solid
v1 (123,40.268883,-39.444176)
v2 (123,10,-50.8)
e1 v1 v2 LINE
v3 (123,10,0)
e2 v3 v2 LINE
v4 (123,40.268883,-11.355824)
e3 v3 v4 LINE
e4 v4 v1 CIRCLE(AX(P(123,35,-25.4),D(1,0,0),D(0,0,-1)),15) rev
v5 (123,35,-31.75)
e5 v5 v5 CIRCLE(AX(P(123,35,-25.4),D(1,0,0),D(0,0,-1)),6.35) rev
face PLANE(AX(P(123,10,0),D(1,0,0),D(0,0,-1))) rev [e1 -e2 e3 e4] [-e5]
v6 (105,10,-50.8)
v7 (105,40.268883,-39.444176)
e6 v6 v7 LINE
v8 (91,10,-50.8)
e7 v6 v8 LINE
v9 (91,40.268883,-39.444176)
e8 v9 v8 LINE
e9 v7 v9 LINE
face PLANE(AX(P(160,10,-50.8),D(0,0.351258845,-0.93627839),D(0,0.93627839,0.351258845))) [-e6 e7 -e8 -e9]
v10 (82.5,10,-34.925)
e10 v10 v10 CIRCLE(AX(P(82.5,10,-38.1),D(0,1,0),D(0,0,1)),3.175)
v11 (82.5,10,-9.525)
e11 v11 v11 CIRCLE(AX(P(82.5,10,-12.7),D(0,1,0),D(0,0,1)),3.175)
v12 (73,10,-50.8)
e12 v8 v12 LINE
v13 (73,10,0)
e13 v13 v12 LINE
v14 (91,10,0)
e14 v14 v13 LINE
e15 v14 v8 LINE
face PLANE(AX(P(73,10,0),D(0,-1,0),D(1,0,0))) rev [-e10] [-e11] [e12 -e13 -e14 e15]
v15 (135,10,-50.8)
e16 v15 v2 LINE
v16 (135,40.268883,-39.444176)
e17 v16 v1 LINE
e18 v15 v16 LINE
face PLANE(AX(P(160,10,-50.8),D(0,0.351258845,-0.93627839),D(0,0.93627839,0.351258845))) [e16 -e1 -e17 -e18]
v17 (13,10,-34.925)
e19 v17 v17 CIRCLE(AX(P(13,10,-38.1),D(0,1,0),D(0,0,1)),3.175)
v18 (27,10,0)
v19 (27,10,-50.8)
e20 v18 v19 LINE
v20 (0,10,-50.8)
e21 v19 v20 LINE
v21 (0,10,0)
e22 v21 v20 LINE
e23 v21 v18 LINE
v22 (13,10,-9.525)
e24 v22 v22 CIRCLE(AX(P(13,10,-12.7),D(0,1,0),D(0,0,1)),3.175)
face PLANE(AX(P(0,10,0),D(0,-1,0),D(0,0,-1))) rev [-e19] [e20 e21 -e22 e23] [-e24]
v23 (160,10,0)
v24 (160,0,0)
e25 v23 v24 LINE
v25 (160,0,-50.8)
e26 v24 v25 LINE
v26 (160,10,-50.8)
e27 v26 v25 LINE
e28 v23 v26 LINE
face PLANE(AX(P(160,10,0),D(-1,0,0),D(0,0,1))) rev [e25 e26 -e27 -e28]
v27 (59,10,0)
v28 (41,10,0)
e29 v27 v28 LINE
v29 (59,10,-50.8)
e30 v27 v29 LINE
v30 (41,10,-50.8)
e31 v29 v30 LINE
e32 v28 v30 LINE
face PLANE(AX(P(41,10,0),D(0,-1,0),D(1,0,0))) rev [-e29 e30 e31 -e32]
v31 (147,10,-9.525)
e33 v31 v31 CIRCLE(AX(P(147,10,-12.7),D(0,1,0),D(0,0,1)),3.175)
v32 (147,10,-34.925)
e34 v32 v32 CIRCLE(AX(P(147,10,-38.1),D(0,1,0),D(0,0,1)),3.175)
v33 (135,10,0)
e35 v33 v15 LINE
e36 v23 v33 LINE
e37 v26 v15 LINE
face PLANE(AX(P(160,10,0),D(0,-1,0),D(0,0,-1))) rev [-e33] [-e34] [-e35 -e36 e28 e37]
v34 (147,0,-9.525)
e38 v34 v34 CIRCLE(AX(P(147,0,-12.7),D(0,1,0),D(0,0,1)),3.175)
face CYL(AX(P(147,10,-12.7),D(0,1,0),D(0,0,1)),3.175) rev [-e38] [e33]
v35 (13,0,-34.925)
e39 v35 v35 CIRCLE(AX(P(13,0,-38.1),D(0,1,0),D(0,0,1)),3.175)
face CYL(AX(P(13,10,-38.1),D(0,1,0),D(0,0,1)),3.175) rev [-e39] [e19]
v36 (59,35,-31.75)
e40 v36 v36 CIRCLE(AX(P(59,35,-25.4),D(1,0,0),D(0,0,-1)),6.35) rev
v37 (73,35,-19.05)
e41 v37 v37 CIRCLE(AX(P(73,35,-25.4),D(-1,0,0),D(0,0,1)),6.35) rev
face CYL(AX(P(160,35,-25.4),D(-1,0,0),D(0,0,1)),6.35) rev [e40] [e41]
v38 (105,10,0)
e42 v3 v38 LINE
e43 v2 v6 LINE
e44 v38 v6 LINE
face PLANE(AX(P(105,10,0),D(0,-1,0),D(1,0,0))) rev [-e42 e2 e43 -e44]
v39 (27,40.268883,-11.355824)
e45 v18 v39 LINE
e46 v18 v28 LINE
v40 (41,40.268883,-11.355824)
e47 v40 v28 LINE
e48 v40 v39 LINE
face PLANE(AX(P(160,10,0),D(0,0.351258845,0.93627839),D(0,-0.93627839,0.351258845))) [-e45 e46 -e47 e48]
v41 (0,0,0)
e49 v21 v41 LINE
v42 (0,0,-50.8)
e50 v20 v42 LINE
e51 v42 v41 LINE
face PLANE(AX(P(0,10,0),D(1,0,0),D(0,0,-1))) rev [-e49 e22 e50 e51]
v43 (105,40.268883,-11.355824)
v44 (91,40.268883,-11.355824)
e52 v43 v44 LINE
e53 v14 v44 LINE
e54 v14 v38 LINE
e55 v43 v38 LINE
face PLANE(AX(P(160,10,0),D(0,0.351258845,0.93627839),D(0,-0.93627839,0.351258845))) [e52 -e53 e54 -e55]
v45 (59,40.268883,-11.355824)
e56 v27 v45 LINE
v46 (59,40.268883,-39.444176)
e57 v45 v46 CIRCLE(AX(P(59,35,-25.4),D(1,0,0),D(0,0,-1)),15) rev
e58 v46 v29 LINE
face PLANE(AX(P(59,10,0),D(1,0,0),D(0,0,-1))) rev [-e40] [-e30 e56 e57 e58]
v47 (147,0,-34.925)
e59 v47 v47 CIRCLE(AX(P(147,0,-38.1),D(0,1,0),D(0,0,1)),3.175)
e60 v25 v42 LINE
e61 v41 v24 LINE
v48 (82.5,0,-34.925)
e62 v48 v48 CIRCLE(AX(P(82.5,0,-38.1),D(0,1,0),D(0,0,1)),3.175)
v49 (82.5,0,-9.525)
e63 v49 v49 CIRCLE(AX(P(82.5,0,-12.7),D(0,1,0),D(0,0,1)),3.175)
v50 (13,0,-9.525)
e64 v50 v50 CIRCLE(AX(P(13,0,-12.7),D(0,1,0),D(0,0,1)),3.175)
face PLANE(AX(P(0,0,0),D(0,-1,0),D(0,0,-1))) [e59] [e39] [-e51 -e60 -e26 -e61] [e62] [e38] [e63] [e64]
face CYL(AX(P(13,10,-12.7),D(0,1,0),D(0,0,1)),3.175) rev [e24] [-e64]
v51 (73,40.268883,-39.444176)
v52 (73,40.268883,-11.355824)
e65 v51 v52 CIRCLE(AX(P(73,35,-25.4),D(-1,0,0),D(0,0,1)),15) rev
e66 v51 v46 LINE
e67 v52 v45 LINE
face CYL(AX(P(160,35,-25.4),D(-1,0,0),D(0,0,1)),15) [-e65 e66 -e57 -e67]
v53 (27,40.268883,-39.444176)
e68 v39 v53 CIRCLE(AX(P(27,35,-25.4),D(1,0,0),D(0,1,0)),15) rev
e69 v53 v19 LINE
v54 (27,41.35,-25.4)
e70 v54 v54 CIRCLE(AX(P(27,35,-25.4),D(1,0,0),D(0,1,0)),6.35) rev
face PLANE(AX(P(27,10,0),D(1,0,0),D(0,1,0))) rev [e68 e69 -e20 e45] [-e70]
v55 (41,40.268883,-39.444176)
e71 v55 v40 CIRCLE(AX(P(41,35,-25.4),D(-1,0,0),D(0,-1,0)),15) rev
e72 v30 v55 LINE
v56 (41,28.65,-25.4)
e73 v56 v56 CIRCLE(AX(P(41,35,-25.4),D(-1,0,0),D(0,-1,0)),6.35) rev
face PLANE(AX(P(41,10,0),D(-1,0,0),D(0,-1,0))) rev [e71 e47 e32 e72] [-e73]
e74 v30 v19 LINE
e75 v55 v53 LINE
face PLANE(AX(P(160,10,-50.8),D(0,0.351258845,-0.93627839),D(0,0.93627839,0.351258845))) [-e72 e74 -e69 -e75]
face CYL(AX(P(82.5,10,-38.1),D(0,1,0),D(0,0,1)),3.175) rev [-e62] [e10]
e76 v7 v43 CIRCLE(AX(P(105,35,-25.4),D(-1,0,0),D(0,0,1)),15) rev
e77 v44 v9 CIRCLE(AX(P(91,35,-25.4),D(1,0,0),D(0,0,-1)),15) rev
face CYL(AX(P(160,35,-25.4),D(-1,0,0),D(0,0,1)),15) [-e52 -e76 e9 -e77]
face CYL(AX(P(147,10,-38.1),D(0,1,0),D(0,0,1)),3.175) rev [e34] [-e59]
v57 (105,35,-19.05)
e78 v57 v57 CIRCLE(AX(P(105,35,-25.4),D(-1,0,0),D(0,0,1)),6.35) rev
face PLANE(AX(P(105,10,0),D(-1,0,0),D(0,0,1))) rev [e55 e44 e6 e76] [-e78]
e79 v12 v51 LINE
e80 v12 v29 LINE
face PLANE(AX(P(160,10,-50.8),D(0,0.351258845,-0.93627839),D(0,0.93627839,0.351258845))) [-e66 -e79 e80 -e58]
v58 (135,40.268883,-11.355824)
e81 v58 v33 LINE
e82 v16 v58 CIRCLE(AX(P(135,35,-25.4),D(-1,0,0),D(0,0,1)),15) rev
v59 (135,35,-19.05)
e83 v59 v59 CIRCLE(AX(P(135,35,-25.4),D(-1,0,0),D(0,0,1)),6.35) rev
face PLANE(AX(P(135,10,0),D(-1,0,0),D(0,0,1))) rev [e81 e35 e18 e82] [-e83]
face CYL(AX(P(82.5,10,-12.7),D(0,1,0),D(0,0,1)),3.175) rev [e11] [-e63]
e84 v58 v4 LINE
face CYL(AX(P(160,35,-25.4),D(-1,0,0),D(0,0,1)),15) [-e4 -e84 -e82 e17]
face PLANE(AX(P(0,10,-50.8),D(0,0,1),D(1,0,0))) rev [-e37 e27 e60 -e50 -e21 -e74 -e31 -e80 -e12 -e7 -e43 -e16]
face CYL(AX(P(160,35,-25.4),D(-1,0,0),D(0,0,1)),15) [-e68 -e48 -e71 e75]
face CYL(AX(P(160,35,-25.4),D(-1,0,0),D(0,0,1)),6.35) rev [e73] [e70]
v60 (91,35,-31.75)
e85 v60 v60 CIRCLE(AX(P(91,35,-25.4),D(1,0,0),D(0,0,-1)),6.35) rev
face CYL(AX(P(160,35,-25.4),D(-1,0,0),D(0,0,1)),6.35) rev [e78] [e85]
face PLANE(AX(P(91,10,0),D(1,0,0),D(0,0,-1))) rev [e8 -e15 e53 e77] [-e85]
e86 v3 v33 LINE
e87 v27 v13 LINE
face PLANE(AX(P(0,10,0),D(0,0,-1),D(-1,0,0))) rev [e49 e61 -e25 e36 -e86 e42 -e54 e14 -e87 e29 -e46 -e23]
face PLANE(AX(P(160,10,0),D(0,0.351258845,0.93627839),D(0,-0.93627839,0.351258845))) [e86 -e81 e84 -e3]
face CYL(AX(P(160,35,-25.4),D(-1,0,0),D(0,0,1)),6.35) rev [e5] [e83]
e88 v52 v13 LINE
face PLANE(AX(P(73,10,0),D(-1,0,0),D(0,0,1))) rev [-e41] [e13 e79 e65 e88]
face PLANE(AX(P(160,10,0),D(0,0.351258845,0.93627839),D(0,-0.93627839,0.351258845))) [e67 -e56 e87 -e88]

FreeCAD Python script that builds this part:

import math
import FreeCAD as App
import Part
import Sketcher

doc = App.newDocument("Part")
body = doc.addObject("PartDesign::Body", "Body")

# Sketch on XZ plane
sketch1 = doc.addObject("Sketcher::SketchObject", "Sketch")
body.addObject(sketch1)
sketch1.AttachmentSupport = (doc.XZ_Plane, [""])
sketch1.MapMode = "FlatFace"
sketch1.addGeometry([
    Part.LineSegment(App.Vector(0, -51, 0), App.Vector(0, 0, 0)),
    Part.LineSegment(App.Vector(0, 0, 0), App.Vector(160, 0, 0)),
    Part.LineSegment(App.Vector(160, 0, 0), App.Vector(160, -51, 0)),
    Part.LineSegment(App.Vector(160, -51, 0), App.Vector(0, -51, 0)),
], False)
sketch1.addConstraint([
    Sketcher.Constraint("Coincident", 0, 2, 1, 1),
    Sketcher.Constraint("Coincident", 1, 2, 2, 1),
    Sketcher.Constraint("Coincident", 2, 2, 3, 1),
    Sketcher.Constraint("Coincident", 3, 2, 0, 1),
    Sketcher.Constraint("Vertical", 0),
    Sketcher.Constraint("Horizontal", 1),
    Sketcher.Constraint("Vertical", 2),
    Sketcher.Constraint("Horizontal", 3),
    Sketcher.Constraint("Coincident", 0, 2, -1, 1),
    Sketcher.Constraint("DistanceX", 1, 1, 1, 2, 160.0),
    Sketcher.Constraint("DistanceY", 0, 1, 0, 2, 50.8),
])
pad1 = doc.addObject("PartDesign::Pad", "Pad")
body.addObject(pad1)
pad1.Profile = sketch1
pad1.Length = 10
pad1.Reversed = True

# Sketch on YZ plane
sketch2 = doc.addObject("Sketcher::SketchObject", "Sketch001")
body.addObject(sketch2)
sketch2.AttachmentSupport = (doc.YZ_Plane, [""])
sketch2.MapMode = "FlatFace"
sketch2.addGeometry([
    Part.LineSegment(App.Vector(40, -39, 0), App.Vector(10, -51, 0)),  # 0
    Part.LineSegment(App.Vector(10, -51, 0), App.Vector(10, 0, 0)),  # 1
    Part.LineSegment(App.Vector(10, 0, 0), App.Vector(40, -11, 0)),  # 2
    Part.ArcOfCircle(Part.Circle(App.Vector(35, -25, 0), App.Vector(0, 0, 1), 15), math.radians(-69), math.radians(69)),  # 3
    Part.Circle(App.Vector(35, -25, 0), App.Vector(0, 0, 1), 6),  # 4
], False)
sketch2.addConstraint([
    Sketcher.Constraint("Coincident", 0, 2, 1, 1),
    Sketcher.Constraint("Coincident", 1, 2, 2, 1),
    Sketcher.Constraint("Tangent", 2, 2, 3, 2),
    Sketcher.Constraint("Tangent", 3, 1, 0, 1),
    Sketcher.Constraint("Vertical", 1),
    Sketcher.Constraint("Coincident", 4, 3, 3, 3),
    Sketcher.Constraint("PointOnObject", 1, 2, -1),
    Sketcher.Constraint("Vertical", 2, 2, 3, 1),
    Sketcher.Constraint("Radius", 3, 15.0),
    Sketcher.Constraint("Diameter", 4, 12.7),
    Sketcher.Constraint("DistanceY", 1, 1, 1, 2, 50.8),
    Sketcher.Constraint("DistanceX", -1, 1, 3, 3, 35.0),
    Sketcher.Constraint("DistanceX", -1, 1, 0, 2, 10.0),
])
pad2 = doc.addObject("PartDesign::Pad", "Pad001")
body.addObject(pad2)
pad2.Profile = sketch2
pad2.Length = 160

# Sketch on XY plane
sketch3 = doc.addObject("Sketcher::SketchObject", "Sketch002")
body.addObject(sketch3)
sketch3.AttachmentSupport = (doc.XY_Plane, [""])
sketch3.MapMode = "FlatFace"
sketch3.AttachmentOffset = App.Placement(App.Vector(0, 0, -50.8), App.Rotation())
sketch3.addGeometry([
    Part.LineSegment(App.Vector(27, 50, 0), App.Vector(27, 10, 0)),  # 0
    Part.LineSegment(App.Vector(27, 10, 0), App.Vector(0, 10, 0)),  # 1
    Part.LineSegment(App.Vector(0, 10, 0), App.Vector(0, 50, 0)),  # 2
    Part.LineSegment(App.Vector(0, 50, 0), App.Vector(27, 50, 0)),  # 3
    Part.LineSegment(App.Vector(59, 50, 0), App.Vector(59, 10, 0)),  # 4
    Part.LineSegment(App.Vector(59, 10, 0), App.Vector(41, 10, 0)),  # 5
    Part.LineSegment(App.Vector(41, 10, 0), App.Vector(41, 50, 0)),  # 6
    Part.LineSegment(App.Vector(41, 50, 0), App.Vector(59, 50, 0)),  # 7
    Part.LineSegment(App.Vector(91, 50, 0), App.Vector(91, 10, 0)),  # 8
    Part.LineSegment(App.Vector(91, 10, 0), App.Vector(73, 10, 0)),  # 9
    Part.LineSegment(App.Vector(73, 10, 0), App.Vector(73, 50, 0)),  # 10
    Part.LineSegment(App.Vector(73, 50, 0), App.Vector(91, 50, 0)),  # 11
    Part.LineSegment(App.Vector(123, 50, 0), App.Vector(123, 10, 0)),  # 12
    Part.LineSegment(App.Vector(123, 10, 0), App.Vector(105, 10, 0)),  # 13
    Part.LineSegment(App.Vector(105, 10, 0), App.Vector(105, 50, 0)),  # 14
    Part.LineSegment(App.Vector(105, 50, 0), App.Vector(123, 50, 0)),  # 15
    Part.LineSegment(App.Vector(160, 50, 0), App.Vector(160, 10, 0)),  # 16
    Part.LineSegment(App.Vector(160, 10, 0), App.Vector(135, 10, 0)),  # 17
    Part.LineSegment(App.Vector(135, 10, 0), App.Vector(135, 50, 0)),  # 18
    Part.LineSegment(App.Vector(135, 50, 0), App.Vector(160, 50, 0)),  # 19
], False)
sketch3.addConstraint([
    Sketcher.Constraint("Coincident", 0, 2, 1, 1),
    Sketcher.Constraint("Coincident", 1, 2, 2, 1),
    Sketcher.Constraint("Coincident", 2, 2, 3, 1),
    Sketcher.Constraint("Coincident", 3, 2, 0, 1),
    Sketcher.Constraint("Coincident", 4, 2, 5, 1),
    Sketcher.Constraint("Coincident", 5, 2, 6, 1),
    Sketcher.Constraint("Coincident", 6, 2, 7, 1),
    Sketcher.Constraint("Coincident", 7, 2, 4, 1),
    Sketcher.Constraint("Coincident", 8, 2, 9, 1),
    Sketcher.Constraint("Coincident", 9, 2, 10, 1),
    Sketcher.Constraint("Coincident", 10, 2, 11, 1),
    Sketcher.Constraint("Coincident", 11, 2, 8, 1),
    Sketcher.Constraint("Coincident", 12, 2, 13, 1),
    Sketcher.Constraint("Coincident", 13, 2, 14, 1),
    Sketcher.Constraint("Coincident", 14, 2, 15, 1),
    Sketcher.Constraint("Coincident", 15, 2, 12, 1),
    Sketcher.Constraint("Coincident", 16, 2, 17, 1),
    Sketcher.Constraint("Coincident", 17, 2, 18, 1),
    Sketcher.Constraint("Coincident", 18, 2, 19, 1),
    Sketcher.Constraint("Coincident", 19, 2, 16, 1),
    Sketcher.Constraint("Vertical", 0),
    Sketcher.Constraint("Horizontal", 1),
    Sketcher.Constraint("Vertical", 2),
    Sketcher.Constraint("Horizontal", 3),
    Sketcher.Constraint("Vertical", 4),
    Sketcher.Constraint("Horizontal", 5),
    Sketcher.Constraint("Vertical", 6),
    Sketcher.Constraint("Horizontal", 7),
    Sketcher.Constraint("Vertical", 8),
    Sketcher.Constraint("Horizontal", 9),
    Sketcher.Constraint("Vertical", 10),
    Sketcher.Constraint("Horizontal", 11),
    Sketcher.Constraint("Vertical", 12),
    Sketcher.Constraint("Horizontal", 13),
    Sketcher.Constraint("Vertical", 14),
    Sketcher.Constraint("Horizontal", 15),
    Sketcher.Constraint("Vertical", 16),
    Sketcher.Constraint("Horizontal", 17),
    Sketcher.Constraint("Vertical", 18),
    Sketcher.Constraint("Horizontal", 19),
    Sketcher.Constraint("PointOnObject", 1, 2, -2),
    Sketcher.Constraint("Horizontal", 1, 2, 4, 2),
    Sketcher.Constraint("Horizontal", 3, 2, 6, 2),
    Sketcher.Constraint("Horizontal", 5, 2, 8, 2),
    Sketcher.Constraint("Horizontal", 7, 2, 10, 2),
    Sketcher.Constraint("Horizontal", 9, 2, 12, 2),
    Sketcher.Constraint("Horizontal", 11, 2, 14, 2),
    Sketcher.Constraint("Horizontal", 13, 2, 16, 2),
    Sketcher.Constraint("Horizontal", 15, 2, 18, 2),
    Sketcher.Constraint("Equal", 7, 9),
    Sketcher.Constraint("Equal", 11, 13),
    Sketcher.Constraint("DistanceX", 1, 2, 1, 1, 27.0),
    Sketcher.Constraint("DistanceX", 5, 2, 5, 1, 18.0),
    Sketcher.Constraint("DistanceX", 17, 2, 17, 1, 25.0),
    Sketcher.Constraint("DistanceY", 0, 2, 0, 1, 40.0),
    Sketcher.Constraint("DistanceY", -1, 1, 0, 2, 10.0),
    Sketcher.Constraint("DistanceX", -1, 1, 4, 2, 59.0),
    Sketcher.Constraint("DistanceX", -1, 1, 8, 2, 91.0),
    Sketcher.Constraint("DistanceX", -1, 1, 12, 2, 123.0),
    Sketcher.Constraint("DistanceX", -1, 1, 16, 2, 160.0),
])
pocket1 = doc.addObject("PartDesign::Pocket", "Pocket")
body.addObject(pocket1)
pocket1.Profile = sketch3
pocket1.Type = "ThroughAll"
pocket1.Reversed = True

# Sketch on XZ plane
sketch4 = doc.addObject("Sketcher::SketchObject", "Sketch003")
body.addObject(sketch4)
sketch4.AttachmentSupport = (doc.XZ_Plane, [""])
sketch4.MapMode = "FlatFace"
sketch4.AttachmentOffset = App.Placement(App.Vector(0, 0, -10), App.Rotation())
sketch4.addGeometry([
    Part.Circle(App.Vector(82.5, -38.1, 0), App.Vector(0, 0, 1), 3.2),  # 0
    Part.Circle(App.Vector(82.5, -12.7, 0), App.Vector(0, 0, 1), 3.2),  # 1
    Part.Circle(App.Vector(147, -12.7, 0), App.Vector(0, 0, 1), 3.2),  # 2
    Part.Circle(App.Vector(147, -38.1, 0), App.Vector(0, 0, 1), 3.2),  # 3
    Part.Circle(App.Vector(13, -38.1, 0), App.Vector(0, 0, 1), 3.2),  # 4
    Part.Circle(App.Vector(13, -12.7, 0), App.Vector(0, 0, 1), 3.2),  # 5
], False)
sketch4.addConstraint([
    Sketcher.Constraint("Equal", 0, 1),
    Sketcher.Constraint("Equal", 1, 2),
    Sketcher.Constraint("Equal", 2, 3),
    Sketcher.Constraint("Equal", 3, 4),
    Sketcher.Constraint("Equal", 4, 5),
    Sketcher.Constraint("Horizontal", 1, 3, 2, 3),
    Sketcher.Constraint("Horizontal", 0, 3, 3, 3),
    Sketcher.Constraint("Horizontal", 3, 3, 4, 3),
    Sketcher.Constraint("Horizontal", 2, 3, 5, 3),
    Sketcher.Constraint("Vertical", 0, 3, 1, 3),
    Sketcher.Constraint("Vertical", 2, 3, 3, 3),
    Sketcher.Constraint("Vertical", 4, 3, 5, 3),
    Sketcher.Constraint("Diameter", 0, 6.35),
    Sketcher.Constraint("DistanceX", -1, 1, 2, 3, 147.0),
    Sketcher.Constraint("DistanceX", -1, 1, 4, 3, 13.0),
    Sketcher.Constraint("DistanceX", -1, 1, 0, 3, 82.5),
    Sketcher.Constraint("DistanceY", 0, 3, -1, 1, 38.1),
    Sketcher.Constraint("DistanceY", 1, 3, -1, 1, 12.7),
])
doc.recompute()
hole = doc.addObject("PartDesign::Hole", "Hole")
body.addObject(hole)
hole.Profile = sketch4
hole.ThreadType = "None"
hole.Diameter = 6.35
hole.DepthType = "ThroughAll"
hole.Reversed = True

doc.recompute()
